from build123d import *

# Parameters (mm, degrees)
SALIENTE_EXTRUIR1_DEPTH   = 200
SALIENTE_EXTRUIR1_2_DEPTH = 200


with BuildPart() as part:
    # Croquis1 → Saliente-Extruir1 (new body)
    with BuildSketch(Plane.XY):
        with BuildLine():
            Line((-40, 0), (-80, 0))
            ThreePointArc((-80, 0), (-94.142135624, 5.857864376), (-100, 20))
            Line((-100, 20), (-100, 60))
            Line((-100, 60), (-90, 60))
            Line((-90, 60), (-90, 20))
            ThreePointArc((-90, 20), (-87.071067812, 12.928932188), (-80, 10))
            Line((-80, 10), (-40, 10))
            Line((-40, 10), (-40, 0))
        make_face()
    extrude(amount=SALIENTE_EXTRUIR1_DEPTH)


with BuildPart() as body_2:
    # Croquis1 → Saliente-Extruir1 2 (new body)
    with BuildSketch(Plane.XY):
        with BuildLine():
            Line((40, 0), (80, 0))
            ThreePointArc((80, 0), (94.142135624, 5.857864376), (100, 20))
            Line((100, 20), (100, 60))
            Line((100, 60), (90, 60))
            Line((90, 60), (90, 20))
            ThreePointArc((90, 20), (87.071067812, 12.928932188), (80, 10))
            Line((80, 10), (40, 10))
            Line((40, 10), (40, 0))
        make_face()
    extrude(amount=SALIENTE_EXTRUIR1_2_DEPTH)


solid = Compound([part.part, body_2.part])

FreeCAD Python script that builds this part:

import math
import FreeCAD as App
import Part
import Sketcher

doc = App.newDocument("Part")
params = doc.addObject("Spreadsheet::Sheet", "Params")
for row, (alias, value) in enumerate([
    ("sketch1_radius", "10 mm"),
    ("sketch1_radius2", "20 mm"),
    ("sketch1_width", "40 mm"),
    ("pad1_length", "200 mm"),
    ("sketch2_radius", "20 mm"),
    ("sketch2_radius2", "10 mm"),
    ("sketch2_width", "40 mm"),
    ("pad2_length", "200 mm"),
], start=1):
    params.set(f"A{row}", alias)
    params.set(f"B{row}", "=" + value)
    params.setAlias(f"B{row}", alias)

body = doc.addObject("PartDesign::Body", "Body")

sketch1 = body.newObject("Sketcher::SketchObject", "Sketch")
sketch1.AttachmentSupport = (doc.getObject("XY_Plane"), [""])
sketch1.MapMode = "FlatFace"
sketch1.addGeometry(Part.LineSegment(App.Vector(-80, 0, 0), App.Vector(-40, 0, 0)), False)
sketch1.addGeometry(Part.LineSegment(App.Vector(-40, 0, 0), App.Vector(-40, 10, 0)), False)
sketch1.addGeometry(Part.LineSegment(App.Vector(-40, 10, 0), App.Vector(-80, 10, 0)), False)
sketch1.addGeometry(Part.ArcOfCircle(Part.Circle(App.Vector(-80, 20, 0), App.Vector(0, 0, 1), 10), math.radians(180), math.radians(270)), False)
sketch1.addGeometry(Part.LineSegment(App.Vector(-90, 20, 0), App.Vector(-90, 60, 0)), False)
sketch1.addGeometry(Part.LineSegment(App.Vector(-90, 60, 0), App.Vector(-100, 60, 0)), False)
sketch1.addGeometry(Part.LineSegment(App.Vector(-100, 60, 0), App.Vector(-100, 20, 0)), False)
sketch1.addGeometry(Part.ArcOfCircle(Part.Circle(App.Vector(-80, 20, 0), App.Vector(0, 0, 1), 20), math.radians(180), math.radians(270)), False)
sketch1.addConstraint(Sketcher.Constraint("Coincident", 0, 2, 1, 1))
sketch1.addConstraint(Sketcher.Constraint("Coincident", 1, 2, 2, 1))
sketch1.addConstraint(Sketcher.Constraint("Tangent", 2, 2, 3, 2))
sketch1.addConstraint(Sketcher.Constraint("Tangent", 3, 1, 4, 1))
sketch1.addConstraint(Sketcher.Constraint("Coincident", 4, 2, 5, 1))
sketch1.addConstraint(Sketcher.Constraint("Coincident", 5, 2, 6, 1))
sketch1.addConstraint(Sketcher.Constraint("Tangent", 6, 2, 7, 1))
sketch1.addConstraint(Sketcher.Constraint("Tangent", 7, 2, 0, 1))
sketch1.addConstraint(Sketcher.Constraint("Horizontal", 0))
sketch1.addConstraint(Sketcher.Constraint("Vertical", 1))
sketch1.addConstraint(Sketcher.Constraint("Horizontal", 2))
sketch1.addConstraint(Sketcher.Constraint("Vertical", 4))
sketch1.addConstraint(Sketcher.Constraint("Horizontal", 5))
sketch1.addConstraint(Sketcher.Constraint("Vertical", 6))
sketch1.addConstraint(Sketcher.Constraint("Coincident", 7, 3, 3, 3))
sketch1.addConstraint(Sketcher.Constraint("PointOnObject", 0, 2, -1))
sketch1.addConstraint(Sketcher.Constraint("Equal", 2, 4))
sketch1.addConstraint(Sketcher.Constraint("Radius", 3, 10.0))
sketch1.addConstraint(Sketcher.Constraint("Radius", 7, 20.0))
sketch1.addConstraint(Sketcher.Constraint("DistanceX", 0, 1, 0, 2, 40.0))
sketch1.addConstraint(Sketcher.Constraint("DistanceX", 3, 3, -1, 1, 80.0))
sketch1.setExpression("Constraints[17]", "Params.sketch1_radius")
sketch1.setExpression("Constraints[18]", "Params.sketch1_radius2")
sketch1.setExpression("Constraints[19]", "Params.sketch1_width")
pad1 = body.newObject("PartDesign::Pad", "Pad")
pad1.Profile = sketch1
pad1.setExpression("Length", "Params.pad1_length")
body2 = doc.addObject("PartDesign::Body", "Body001")

sketch2 = body2.newObject("Sketcher::SketchObject", "Sketch001")
sketch2.AttachmentSupport = (doc.getObject("XY_Plane001"), [""])
sketch2.MapMode = "FlatFace"
sketch2.addGeometry(Part.LineSegment(App.Vector(40, 0, 0), App.Vector(80, 0, 0)), False)
sketch2.addGeometry(Part.ArcOfCircle(Part.Circle(App.Vector(80, 20, 0), App.Vector(0, 0, 1), 20), math.radians(-90), math.radians(0)), False)
sketch2.addGeometry(Part.LineSegment(App.Vector(100, 20, 0), App.Vector(100, 60, 0)), False)
sketch2.addGeometry(Part.LineSegment(App.Vector(100, 60, 0), App.Vector(90, 60, 0)), False)
sketch2.addGeometry(Part.LineSegment(App.Vector(90, 60, 0), App.Vector(90, 20, 0)), False)
sketch2.addGeometry(Part.ArcOfCircle(Part.Circle(App.Vector(80, 20, 0), App.Vector(0, 0, 1), 10), math.radians(-90), math.radians(0)), False)
sketch2.addGeometry(Part.LineSegment(App.Vector(80, 10, 0), App.Vector(40, 10, 0)), False)
sketch2.addGeometry(Part.LineSegment(App.Vector(40, 10, 0), App.Vector(40, 0, 0)), False)
sketch2.addConstraint(Sketcher.Constraint("Tangent", 0, 2, 1, 1))
sketch2.addConstraint(Sketcher.Constraint("Tangent", 1, 2, 2, 1))
sketch2.addConstraint(Sketcher.Constraint("Coincident", 2, 2, 3, 1))
sketch2.addConstraint(Sketcher.Constraint("Coincident", 3, 2, 4, 1))
sketch2.addConstraint(Sketcher.Constraint("Tangent", 4, 2, 5, 2))
sketch2.addConstraint(Sketcher.Constraint("Tangent", 5, 1, 6, 1))
sketch2.addConstraint(Sketcher.Constraint("Coincident", 6, 2, 7, 1))
sketch2.addConstraint(Sketcher.Constraint("Coincident", 7, 2, 0, 1))
sketch2.addConstraint(Sketcher.Constraint("Horizontal", 0))
sketch2.addConstraint(Sketcher.Constraint("Vertical", 2))
sketch2.addConstraint(Sketcher.Constraint("Horizontal", 3))
sketch2.addConstraint(Sketcher.Constraint("Vertical", 4))
sketch2.addConstraint(Sketcher.Constraint("Horizontal", 6))
sketch2.addConstraint(Sketcher.Constraint("Vertical", 7))
sketch2.addConstraint(Sketcher.Constraint("Coincident", 5, 3, 1, 3))
sketch2.addConstraint(Sketcher.Constraint("PointOnObject", 0, 2, -1))
sketch2.addConstraint(Sketcher.Constraint("Equal", 6, 2))
sketch2.addConstraint(Sketcher.Constraint("Radius", 1, 20.0))
sketch2.addConstraint(Sketcher.Constraint("Radius", 5, 10.0))
sketch2.addConstraint(Sketcher.Constraint("DistanceX", 0, 1, 0, 2, 40.0))
sketch2.addConstraint(Sketcher.Constraint("DistanceX", -1, 1, 1, 3, 80.0))
sketch2.setExpression("Constraints[17]", "Params.sketch2_radius")
sketch2.setExpression("Constraints[18]", "Params.sketch2_radius2")
sketch2.setExpression("Constraints[19]", "Params.sketch2_width")
pad2 = body2.newObject("PartDesign::Pad", "Pad001")
pad2.Profile = sketch2
pad2.setExpression("Length", "Params.pad2_length")

doc.recompute()
